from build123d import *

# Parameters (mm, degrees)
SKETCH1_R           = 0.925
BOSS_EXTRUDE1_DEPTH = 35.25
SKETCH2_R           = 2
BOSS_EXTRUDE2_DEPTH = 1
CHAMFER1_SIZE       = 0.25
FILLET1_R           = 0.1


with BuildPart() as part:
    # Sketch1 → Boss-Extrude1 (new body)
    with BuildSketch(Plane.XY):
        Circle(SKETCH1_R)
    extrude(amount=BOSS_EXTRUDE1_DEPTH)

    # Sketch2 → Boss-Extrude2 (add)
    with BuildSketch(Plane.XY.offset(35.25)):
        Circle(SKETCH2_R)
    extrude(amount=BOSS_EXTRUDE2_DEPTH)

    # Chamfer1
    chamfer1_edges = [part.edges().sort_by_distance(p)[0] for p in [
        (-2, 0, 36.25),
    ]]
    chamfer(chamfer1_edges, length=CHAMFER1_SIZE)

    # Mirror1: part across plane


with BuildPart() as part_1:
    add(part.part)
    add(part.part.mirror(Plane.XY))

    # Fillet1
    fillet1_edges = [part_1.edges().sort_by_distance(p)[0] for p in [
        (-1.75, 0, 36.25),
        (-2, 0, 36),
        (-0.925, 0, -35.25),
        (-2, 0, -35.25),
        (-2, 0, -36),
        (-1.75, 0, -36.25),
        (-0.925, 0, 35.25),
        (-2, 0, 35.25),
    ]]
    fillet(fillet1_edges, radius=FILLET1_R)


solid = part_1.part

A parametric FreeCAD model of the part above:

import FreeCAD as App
import Part
import Sketcher
from FreeCAD import Vector
Q = App.Units.Quantity


def edges_at(feature, points):
    """Names of the edges that pass closest to the given points."""
    edges = feature.Shape.Edges
    near = lambda p: min(range(len(edges)), key=lambda i: edges[i].distToShape(Part.Vertex(*p))[0])
    return sorted({f"Edge{near(p) + 1}" for p in points})

doc = App.newDocument("Part")
body = doc.addObject("PartDesign::Body", "Body")

# Sketch on XY plane
sketch1 = doc.addObject("Sketcher::SketchObject", "Sketch")
body.addObject(sketch1)
sketch1.AttachmentSupport = (doc.XY_Plane, [""])
sketch1.MapMode = "FlatFace"
sketch1.addGeometry(Part.Circle(Vector(0, 0, 0), Vector(0, 0, 1), 0.9), False)
sketch1.addConstraint(Sketcher.Constraint("Coincident", 0, 3, -1, 1))
sketch1.addConstraint(Sketcher.Constraint("Diameter", 0, Q("1.85 mm")))
pad1 = doc.addObject("PartDesign::Pad", "Pad")
body.addObject(pad1)
pad1.Profile = sketch1
pad1.Length = 35.25

# Sketch on XY plane
sketch2 = doc.addObject("Sketcher::SketchObject", "Sketch001")
body.addObject(sketch2)
sketch2.AttachmentSupport = (doc.XY_Plane, [""])
sketch2.MapMode = "FlatFace"
sketch2.AttachmentOffset = App.Placement(Vector(0, 0, 35.25), App.Rotation())
sketch2.addGeometry(Part.Circle(Vector(0, 0, 0), Vector(0, 0, 1), 2), False)
sketch2.addConstraint(Sketcher.Constraint("Coincident", 0, 3, -1, 1))
sketch2.addConstraint(Sketcher.Constraint("Diameter", 0, Q("4 mm")))
pad2 = doc.addObject("PartDesign::Pad", "Pad001")
body.addObject(pad2)
pad2.Profile = sketch2
pad2.Length = 1
doc.recompute()

chamfer = doc.addObject("PartDesign::Chamfer", "Chamfer")
body.addObject(chamfer)
chamfer.Base = (pad2, edges_at(pad2, [(-2, 0, 36.25)]))
chamfer.Size = 0.25
body2 = doc.addObject("PartDesign::Body", "Body001")
doc.recompute()

body2.BaseFeature = body
doc.recompute()

mirroring = doc.addObject("Part::Mirroring", "Mirroring")
mirroring.Source = body
mirroring.Base = Vector(0, 0, 0)
mirroring.Normal = Vector(0, 0, 1)
body3 = doc.addObject("PartDesign::Body", "Body002")
body3.BaseFeature = mirroring
boolean = doc.addObject("PartDesign::Boolean", "Boolean")
body2.addObject(boolean)
boolean.Type = "Fuse"
boolean.addObjects([body3])
doc.recompute()

fillet = doc.addObject("PartDesign::Fillet", "Fillet")
body2.addObject(fillet)
fillet.Base = (boolean, edges_at(boolean, [
    (-1.75, 0, 36.25),
    (-2, 0, 36),
    (-0.925, 0, -35.25),
    (-2, 0, -35.25),
    (-2, 0, -36),
    (-1.75, 0, -36.25),
    (-0.925, 0, 35.25),
    (-2, 0, 35.25),
]))
fillet.Radius = 0.1
mirroring.Visibility = False

doc.recompute()
